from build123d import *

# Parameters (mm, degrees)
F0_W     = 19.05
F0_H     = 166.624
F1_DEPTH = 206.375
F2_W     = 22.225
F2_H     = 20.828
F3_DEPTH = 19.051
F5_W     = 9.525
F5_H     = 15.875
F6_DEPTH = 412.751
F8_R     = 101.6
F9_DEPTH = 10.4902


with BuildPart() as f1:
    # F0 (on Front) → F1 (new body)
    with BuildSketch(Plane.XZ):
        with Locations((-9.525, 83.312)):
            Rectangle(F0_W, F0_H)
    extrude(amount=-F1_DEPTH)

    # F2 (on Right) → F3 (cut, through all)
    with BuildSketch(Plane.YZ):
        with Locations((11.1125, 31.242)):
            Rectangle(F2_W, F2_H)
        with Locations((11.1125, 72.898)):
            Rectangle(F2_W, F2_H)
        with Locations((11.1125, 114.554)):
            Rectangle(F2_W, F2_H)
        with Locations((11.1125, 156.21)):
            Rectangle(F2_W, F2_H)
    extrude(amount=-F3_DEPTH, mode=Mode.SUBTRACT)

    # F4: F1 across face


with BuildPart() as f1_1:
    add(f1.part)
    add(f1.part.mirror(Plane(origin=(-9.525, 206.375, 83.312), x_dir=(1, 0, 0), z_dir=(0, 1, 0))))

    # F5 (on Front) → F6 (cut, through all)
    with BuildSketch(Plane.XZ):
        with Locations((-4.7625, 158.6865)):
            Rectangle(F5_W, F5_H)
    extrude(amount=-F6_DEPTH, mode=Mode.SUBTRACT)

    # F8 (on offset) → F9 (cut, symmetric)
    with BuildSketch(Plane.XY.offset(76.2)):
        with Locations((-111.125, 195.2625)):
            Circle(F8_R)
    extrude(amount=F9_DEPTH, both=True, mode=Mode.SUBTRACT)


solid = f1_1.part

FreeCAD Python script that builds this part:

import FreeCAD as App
import Part
import Sketcher
Q = App.Units.Quantity


def add_polygon(sketch, points):
    """Adds a closed chain of lines whose ends are joined by coincident constraints."""
    first, n = sketch.GeometryCount, len(points)
    for a, b in zip(points, points[1:] + points[:1]):
        sketch.addGeometry(Part.LineSegment(App.Vector(*a, 0), App.Vector(*b, 0)), False)
    for i in range(n):
        sketch.addConstraint(Sketcher.Constraint("Coincident", first + i, 2, first + (i + 1) % n, 1))

doc = App.newDocument("Part")
body = doc.addObject("PartDesign::Body", "Body")

# Sketch on XZ plane
sketch1 = body.newObject("Sketcher::SketchObject", "Sketch")
sketch1.AttachmentSupport = (doc.getObject("XZ_Plane"), [""])
sketch1.MapMode = "FlatFace"
add_polygon(sketch1, [(-19.05, 166.624), (-19.05, 0), (0, 0), (0, 166.624)])  # lines 0-3
sketch1.addConstraint([
    Sketcher.Constraint("Vertical", 0),
    Sketcher.Constraint("Horizontal", 1),
    Sketcher.Constraint("Vertical", 2),
    Sketcher.Constraint("Horizontal", 3),
    Sketcher.Constraint("Coincident", 1, 2, -1, 1),
    Sketcher.Constraint("DistanceX", 1, 1, 1, 2, Q("0.75 in")),
    Sketcher.Constraint("DistanceY", 0, 2, 0, 1, Q("6.56 in")),
])
pad1 = body.newObject("PartDesign::Pad", "Pad")
pad1.Profile = sketch1
pad1.Length = Q("8.125 in")
pad1.Reversed = True

# Sketch on YZ plane
sketch2 = body.newObject("Sketcher::SketchObject", "Sketch001")
sketch2.AttachmentSupport = (doc.getObject("YZ_Plane"), [""])
sketch2.MapMode = "FlatFace"
add_polygon(sketch2, [(0, 41.656), (0, 20.828), (22.225, 20.828), (22.225, 41.656)])  # lines 0-3
add_polygon(sketch2, [(0, 83.312), (0, 62.484), (22.225, 62.484), (22.225, 83.312)])  # lines 4-7
add_polygon(sketch2, [(0, 124.968), (0, 104.14), (22.225, 104.14), (22.225, 124.968)])  # lines 8-11
add_polygon(sketch2, [(0, 166.624), (0, 145.796), (22.225, 145.796), (22.225, 166.624)])  # lines 12-15
sketch2.addConstraint([
    Sketcher.Constraint("Vertical", 0),
    Sketcher.Constraint("Horizontal", 1),
    Sketcher.Constraint("Vertical", 2),
    Sketcher.Constraint("Horizontal", 3),
    Sketcher.Constraint("Vertical", 4),
    Sketcher.Constraint("Horizontal", 5),
    Sketcher.Constraint("Vertical", 6),
    Sketcher.Constraint("Horizontal", 7),
    Sketcher.Constraint("Vertical", 8),
    Sketcher.Constraint("Horizontal", 9),
    Sketcher.Constraint("Vertical", 10),
    Sketcher.Constraint("Horizontal", 11),
    Sketcher.Constraint("Vertical", 12),
    Sketcher.Constraint("Horizontal", 13),
    Sketcher.Constraint("Vertical", 14),
    Sketcher.Constraint("Horizontal", 15),
    Sketcher.Constraint("PointOnObject", 0, 2, -2),
    Sketcher.Constraint("PointOnObject", 4, 2, -2),
    Sketcher.Constraint("PointOnObject", 8, 2, -2),
    Sketcher.Constraint("PointOnObject", 12, 2, -2),
    Sketcher.Constraint("Vertical", 2, 2, 5, 2),
    Sketcher.Constraint("Vertical", 6, 2, 9, 2),
    Sketcher.Constraint("Vertical", 10, 2, 13, 2),
    Sketcher.Constraint("Equal", 2, 4),
    Sketcher.Constraint("Equal", 6, 8),
    Sketcher.Constraint("Equal", 10, 12),
    Sketcher.Constraint("DistanceY", 0, 2, 0, 1, Q("0.82 in")),
    Sketcher.Constraint("DistanceY", -1, 1, 8, 2, Q("4.1 in")),
    Sketcher.Constraint("DistanceX", 1, 1, 1, 2, Q("0.875 in")),
    Sketcher.Constraint("DistanceY", -1, 1, 0, 2, Q("0.82 in")),
    Sketcher.Constraint("DistanceY", -1, 1, 4, 2, Q("2.46 in")),
    Sketcher.Constraint("DistanceY", -1, 1, 12, 2, Q("5.74 in")),
])
pocket1 = body.newObject("PartDesign::Pocket", "Pocket")
pocket1.Profile = sketch2
pocket1.Type = "ThroughAll"
body2 = doc.addObject("PartDesign::Body", "Body001")
doc.recompute()

body2.BaseFeature = body
doc.recompute()

mirroring = doc.addObject("Part::Mirroring", "Mirroring")
mirroring.Source = body
mirroring.Base = App.Vector(-9.525, 206.375, 83.312)
mirroring.Normal = App.Vector(0, 1, 0)
body3 = doc.addObject("PartDesign::Body", "Body002")
body3.BaseFeature = mirroring
boolean = body2.newObject("PartDesign::Boolean", "Boolean")
boolean.Type = "Fuse"
boolean.addObjects([body3])
doc.recompute()

# Sketch on XZ plane
sketch3 = body2.newObject("Sketcher::SketchObject", "Sketch002")
sketch3.AttachmentSupport = (doc.getObject("XZ_Plane001"), [""])
sketch3.MapMode = "FlatFace"
add_polygon(sketch3, [(-9.525, 166.624), (-9.525, 150.749), (0, 150.749), (0, 166.624)])  # lines 0-3
sketch3.addConstraint([
    Sketcher.Constraint("Vertical", 0),
    Sketcher.Constraint("Horizontal", 1),
    Sketcher.Constraint("Vertical", 2),
    Sketcher.Constraint("Horizontal", 3),
    Sketcher.Constraint("PointOnObject", 1, 2, -2),
    Sketcher.Constraint("DistanceX", 1, 1, 1, 2, Q("0.375 in")),
    Sketcher.Constraint("DistanceY", 0, 2, 0, 1, Q("0.625 in")),
    Sketcher.Constraint("DistanceY", -1, 1, 2, 2, Q("6.56 in")),
])
pocket2 = body2.newObject("PartDesign::Pocket", "Pocket001")
pocket2.Profile = sketch3
pocket2.Type = "ThroughAll"

# Sketch on XY plane
sketch4 = body2.newObject("Sketcher::SketchObject", "Sketch003")
sketch4.AttachmentSupport = (doc.getObject("XY_Plane001"), [""])
sketch4.MapMode = "FlatFace"
sketch4.AttachmentOffset = App.Placement(App.Vector(0, 0, 3 * 25.4), App.Rotation())
sketch4.addGeometry(Part.Circle(App.Vector(-111.125, 195.2625, 0), App.Vector(0, 0, 1), 101.6), False)
sketch4.addConstraint([
    Sketcher.Constraint("Diameter", 0, Q("8 in")),
    Sketcher.Constraint("DistanceX", 0, 3, -1, 1, Q("4.375 in")),
    Sketcher.Constraint("DistanceY", -1, 1, 0, 3, Q("7.6875 in")),
])
pocket3 = body2.newObject("PartDesign::Pocket", "Pocket002")
pocket3.Profile = sketch4
pocket3.Length = Q("0.826 in")
pocket3.Midplane = True
mirroring.Visibility = False

doc.recompute()
